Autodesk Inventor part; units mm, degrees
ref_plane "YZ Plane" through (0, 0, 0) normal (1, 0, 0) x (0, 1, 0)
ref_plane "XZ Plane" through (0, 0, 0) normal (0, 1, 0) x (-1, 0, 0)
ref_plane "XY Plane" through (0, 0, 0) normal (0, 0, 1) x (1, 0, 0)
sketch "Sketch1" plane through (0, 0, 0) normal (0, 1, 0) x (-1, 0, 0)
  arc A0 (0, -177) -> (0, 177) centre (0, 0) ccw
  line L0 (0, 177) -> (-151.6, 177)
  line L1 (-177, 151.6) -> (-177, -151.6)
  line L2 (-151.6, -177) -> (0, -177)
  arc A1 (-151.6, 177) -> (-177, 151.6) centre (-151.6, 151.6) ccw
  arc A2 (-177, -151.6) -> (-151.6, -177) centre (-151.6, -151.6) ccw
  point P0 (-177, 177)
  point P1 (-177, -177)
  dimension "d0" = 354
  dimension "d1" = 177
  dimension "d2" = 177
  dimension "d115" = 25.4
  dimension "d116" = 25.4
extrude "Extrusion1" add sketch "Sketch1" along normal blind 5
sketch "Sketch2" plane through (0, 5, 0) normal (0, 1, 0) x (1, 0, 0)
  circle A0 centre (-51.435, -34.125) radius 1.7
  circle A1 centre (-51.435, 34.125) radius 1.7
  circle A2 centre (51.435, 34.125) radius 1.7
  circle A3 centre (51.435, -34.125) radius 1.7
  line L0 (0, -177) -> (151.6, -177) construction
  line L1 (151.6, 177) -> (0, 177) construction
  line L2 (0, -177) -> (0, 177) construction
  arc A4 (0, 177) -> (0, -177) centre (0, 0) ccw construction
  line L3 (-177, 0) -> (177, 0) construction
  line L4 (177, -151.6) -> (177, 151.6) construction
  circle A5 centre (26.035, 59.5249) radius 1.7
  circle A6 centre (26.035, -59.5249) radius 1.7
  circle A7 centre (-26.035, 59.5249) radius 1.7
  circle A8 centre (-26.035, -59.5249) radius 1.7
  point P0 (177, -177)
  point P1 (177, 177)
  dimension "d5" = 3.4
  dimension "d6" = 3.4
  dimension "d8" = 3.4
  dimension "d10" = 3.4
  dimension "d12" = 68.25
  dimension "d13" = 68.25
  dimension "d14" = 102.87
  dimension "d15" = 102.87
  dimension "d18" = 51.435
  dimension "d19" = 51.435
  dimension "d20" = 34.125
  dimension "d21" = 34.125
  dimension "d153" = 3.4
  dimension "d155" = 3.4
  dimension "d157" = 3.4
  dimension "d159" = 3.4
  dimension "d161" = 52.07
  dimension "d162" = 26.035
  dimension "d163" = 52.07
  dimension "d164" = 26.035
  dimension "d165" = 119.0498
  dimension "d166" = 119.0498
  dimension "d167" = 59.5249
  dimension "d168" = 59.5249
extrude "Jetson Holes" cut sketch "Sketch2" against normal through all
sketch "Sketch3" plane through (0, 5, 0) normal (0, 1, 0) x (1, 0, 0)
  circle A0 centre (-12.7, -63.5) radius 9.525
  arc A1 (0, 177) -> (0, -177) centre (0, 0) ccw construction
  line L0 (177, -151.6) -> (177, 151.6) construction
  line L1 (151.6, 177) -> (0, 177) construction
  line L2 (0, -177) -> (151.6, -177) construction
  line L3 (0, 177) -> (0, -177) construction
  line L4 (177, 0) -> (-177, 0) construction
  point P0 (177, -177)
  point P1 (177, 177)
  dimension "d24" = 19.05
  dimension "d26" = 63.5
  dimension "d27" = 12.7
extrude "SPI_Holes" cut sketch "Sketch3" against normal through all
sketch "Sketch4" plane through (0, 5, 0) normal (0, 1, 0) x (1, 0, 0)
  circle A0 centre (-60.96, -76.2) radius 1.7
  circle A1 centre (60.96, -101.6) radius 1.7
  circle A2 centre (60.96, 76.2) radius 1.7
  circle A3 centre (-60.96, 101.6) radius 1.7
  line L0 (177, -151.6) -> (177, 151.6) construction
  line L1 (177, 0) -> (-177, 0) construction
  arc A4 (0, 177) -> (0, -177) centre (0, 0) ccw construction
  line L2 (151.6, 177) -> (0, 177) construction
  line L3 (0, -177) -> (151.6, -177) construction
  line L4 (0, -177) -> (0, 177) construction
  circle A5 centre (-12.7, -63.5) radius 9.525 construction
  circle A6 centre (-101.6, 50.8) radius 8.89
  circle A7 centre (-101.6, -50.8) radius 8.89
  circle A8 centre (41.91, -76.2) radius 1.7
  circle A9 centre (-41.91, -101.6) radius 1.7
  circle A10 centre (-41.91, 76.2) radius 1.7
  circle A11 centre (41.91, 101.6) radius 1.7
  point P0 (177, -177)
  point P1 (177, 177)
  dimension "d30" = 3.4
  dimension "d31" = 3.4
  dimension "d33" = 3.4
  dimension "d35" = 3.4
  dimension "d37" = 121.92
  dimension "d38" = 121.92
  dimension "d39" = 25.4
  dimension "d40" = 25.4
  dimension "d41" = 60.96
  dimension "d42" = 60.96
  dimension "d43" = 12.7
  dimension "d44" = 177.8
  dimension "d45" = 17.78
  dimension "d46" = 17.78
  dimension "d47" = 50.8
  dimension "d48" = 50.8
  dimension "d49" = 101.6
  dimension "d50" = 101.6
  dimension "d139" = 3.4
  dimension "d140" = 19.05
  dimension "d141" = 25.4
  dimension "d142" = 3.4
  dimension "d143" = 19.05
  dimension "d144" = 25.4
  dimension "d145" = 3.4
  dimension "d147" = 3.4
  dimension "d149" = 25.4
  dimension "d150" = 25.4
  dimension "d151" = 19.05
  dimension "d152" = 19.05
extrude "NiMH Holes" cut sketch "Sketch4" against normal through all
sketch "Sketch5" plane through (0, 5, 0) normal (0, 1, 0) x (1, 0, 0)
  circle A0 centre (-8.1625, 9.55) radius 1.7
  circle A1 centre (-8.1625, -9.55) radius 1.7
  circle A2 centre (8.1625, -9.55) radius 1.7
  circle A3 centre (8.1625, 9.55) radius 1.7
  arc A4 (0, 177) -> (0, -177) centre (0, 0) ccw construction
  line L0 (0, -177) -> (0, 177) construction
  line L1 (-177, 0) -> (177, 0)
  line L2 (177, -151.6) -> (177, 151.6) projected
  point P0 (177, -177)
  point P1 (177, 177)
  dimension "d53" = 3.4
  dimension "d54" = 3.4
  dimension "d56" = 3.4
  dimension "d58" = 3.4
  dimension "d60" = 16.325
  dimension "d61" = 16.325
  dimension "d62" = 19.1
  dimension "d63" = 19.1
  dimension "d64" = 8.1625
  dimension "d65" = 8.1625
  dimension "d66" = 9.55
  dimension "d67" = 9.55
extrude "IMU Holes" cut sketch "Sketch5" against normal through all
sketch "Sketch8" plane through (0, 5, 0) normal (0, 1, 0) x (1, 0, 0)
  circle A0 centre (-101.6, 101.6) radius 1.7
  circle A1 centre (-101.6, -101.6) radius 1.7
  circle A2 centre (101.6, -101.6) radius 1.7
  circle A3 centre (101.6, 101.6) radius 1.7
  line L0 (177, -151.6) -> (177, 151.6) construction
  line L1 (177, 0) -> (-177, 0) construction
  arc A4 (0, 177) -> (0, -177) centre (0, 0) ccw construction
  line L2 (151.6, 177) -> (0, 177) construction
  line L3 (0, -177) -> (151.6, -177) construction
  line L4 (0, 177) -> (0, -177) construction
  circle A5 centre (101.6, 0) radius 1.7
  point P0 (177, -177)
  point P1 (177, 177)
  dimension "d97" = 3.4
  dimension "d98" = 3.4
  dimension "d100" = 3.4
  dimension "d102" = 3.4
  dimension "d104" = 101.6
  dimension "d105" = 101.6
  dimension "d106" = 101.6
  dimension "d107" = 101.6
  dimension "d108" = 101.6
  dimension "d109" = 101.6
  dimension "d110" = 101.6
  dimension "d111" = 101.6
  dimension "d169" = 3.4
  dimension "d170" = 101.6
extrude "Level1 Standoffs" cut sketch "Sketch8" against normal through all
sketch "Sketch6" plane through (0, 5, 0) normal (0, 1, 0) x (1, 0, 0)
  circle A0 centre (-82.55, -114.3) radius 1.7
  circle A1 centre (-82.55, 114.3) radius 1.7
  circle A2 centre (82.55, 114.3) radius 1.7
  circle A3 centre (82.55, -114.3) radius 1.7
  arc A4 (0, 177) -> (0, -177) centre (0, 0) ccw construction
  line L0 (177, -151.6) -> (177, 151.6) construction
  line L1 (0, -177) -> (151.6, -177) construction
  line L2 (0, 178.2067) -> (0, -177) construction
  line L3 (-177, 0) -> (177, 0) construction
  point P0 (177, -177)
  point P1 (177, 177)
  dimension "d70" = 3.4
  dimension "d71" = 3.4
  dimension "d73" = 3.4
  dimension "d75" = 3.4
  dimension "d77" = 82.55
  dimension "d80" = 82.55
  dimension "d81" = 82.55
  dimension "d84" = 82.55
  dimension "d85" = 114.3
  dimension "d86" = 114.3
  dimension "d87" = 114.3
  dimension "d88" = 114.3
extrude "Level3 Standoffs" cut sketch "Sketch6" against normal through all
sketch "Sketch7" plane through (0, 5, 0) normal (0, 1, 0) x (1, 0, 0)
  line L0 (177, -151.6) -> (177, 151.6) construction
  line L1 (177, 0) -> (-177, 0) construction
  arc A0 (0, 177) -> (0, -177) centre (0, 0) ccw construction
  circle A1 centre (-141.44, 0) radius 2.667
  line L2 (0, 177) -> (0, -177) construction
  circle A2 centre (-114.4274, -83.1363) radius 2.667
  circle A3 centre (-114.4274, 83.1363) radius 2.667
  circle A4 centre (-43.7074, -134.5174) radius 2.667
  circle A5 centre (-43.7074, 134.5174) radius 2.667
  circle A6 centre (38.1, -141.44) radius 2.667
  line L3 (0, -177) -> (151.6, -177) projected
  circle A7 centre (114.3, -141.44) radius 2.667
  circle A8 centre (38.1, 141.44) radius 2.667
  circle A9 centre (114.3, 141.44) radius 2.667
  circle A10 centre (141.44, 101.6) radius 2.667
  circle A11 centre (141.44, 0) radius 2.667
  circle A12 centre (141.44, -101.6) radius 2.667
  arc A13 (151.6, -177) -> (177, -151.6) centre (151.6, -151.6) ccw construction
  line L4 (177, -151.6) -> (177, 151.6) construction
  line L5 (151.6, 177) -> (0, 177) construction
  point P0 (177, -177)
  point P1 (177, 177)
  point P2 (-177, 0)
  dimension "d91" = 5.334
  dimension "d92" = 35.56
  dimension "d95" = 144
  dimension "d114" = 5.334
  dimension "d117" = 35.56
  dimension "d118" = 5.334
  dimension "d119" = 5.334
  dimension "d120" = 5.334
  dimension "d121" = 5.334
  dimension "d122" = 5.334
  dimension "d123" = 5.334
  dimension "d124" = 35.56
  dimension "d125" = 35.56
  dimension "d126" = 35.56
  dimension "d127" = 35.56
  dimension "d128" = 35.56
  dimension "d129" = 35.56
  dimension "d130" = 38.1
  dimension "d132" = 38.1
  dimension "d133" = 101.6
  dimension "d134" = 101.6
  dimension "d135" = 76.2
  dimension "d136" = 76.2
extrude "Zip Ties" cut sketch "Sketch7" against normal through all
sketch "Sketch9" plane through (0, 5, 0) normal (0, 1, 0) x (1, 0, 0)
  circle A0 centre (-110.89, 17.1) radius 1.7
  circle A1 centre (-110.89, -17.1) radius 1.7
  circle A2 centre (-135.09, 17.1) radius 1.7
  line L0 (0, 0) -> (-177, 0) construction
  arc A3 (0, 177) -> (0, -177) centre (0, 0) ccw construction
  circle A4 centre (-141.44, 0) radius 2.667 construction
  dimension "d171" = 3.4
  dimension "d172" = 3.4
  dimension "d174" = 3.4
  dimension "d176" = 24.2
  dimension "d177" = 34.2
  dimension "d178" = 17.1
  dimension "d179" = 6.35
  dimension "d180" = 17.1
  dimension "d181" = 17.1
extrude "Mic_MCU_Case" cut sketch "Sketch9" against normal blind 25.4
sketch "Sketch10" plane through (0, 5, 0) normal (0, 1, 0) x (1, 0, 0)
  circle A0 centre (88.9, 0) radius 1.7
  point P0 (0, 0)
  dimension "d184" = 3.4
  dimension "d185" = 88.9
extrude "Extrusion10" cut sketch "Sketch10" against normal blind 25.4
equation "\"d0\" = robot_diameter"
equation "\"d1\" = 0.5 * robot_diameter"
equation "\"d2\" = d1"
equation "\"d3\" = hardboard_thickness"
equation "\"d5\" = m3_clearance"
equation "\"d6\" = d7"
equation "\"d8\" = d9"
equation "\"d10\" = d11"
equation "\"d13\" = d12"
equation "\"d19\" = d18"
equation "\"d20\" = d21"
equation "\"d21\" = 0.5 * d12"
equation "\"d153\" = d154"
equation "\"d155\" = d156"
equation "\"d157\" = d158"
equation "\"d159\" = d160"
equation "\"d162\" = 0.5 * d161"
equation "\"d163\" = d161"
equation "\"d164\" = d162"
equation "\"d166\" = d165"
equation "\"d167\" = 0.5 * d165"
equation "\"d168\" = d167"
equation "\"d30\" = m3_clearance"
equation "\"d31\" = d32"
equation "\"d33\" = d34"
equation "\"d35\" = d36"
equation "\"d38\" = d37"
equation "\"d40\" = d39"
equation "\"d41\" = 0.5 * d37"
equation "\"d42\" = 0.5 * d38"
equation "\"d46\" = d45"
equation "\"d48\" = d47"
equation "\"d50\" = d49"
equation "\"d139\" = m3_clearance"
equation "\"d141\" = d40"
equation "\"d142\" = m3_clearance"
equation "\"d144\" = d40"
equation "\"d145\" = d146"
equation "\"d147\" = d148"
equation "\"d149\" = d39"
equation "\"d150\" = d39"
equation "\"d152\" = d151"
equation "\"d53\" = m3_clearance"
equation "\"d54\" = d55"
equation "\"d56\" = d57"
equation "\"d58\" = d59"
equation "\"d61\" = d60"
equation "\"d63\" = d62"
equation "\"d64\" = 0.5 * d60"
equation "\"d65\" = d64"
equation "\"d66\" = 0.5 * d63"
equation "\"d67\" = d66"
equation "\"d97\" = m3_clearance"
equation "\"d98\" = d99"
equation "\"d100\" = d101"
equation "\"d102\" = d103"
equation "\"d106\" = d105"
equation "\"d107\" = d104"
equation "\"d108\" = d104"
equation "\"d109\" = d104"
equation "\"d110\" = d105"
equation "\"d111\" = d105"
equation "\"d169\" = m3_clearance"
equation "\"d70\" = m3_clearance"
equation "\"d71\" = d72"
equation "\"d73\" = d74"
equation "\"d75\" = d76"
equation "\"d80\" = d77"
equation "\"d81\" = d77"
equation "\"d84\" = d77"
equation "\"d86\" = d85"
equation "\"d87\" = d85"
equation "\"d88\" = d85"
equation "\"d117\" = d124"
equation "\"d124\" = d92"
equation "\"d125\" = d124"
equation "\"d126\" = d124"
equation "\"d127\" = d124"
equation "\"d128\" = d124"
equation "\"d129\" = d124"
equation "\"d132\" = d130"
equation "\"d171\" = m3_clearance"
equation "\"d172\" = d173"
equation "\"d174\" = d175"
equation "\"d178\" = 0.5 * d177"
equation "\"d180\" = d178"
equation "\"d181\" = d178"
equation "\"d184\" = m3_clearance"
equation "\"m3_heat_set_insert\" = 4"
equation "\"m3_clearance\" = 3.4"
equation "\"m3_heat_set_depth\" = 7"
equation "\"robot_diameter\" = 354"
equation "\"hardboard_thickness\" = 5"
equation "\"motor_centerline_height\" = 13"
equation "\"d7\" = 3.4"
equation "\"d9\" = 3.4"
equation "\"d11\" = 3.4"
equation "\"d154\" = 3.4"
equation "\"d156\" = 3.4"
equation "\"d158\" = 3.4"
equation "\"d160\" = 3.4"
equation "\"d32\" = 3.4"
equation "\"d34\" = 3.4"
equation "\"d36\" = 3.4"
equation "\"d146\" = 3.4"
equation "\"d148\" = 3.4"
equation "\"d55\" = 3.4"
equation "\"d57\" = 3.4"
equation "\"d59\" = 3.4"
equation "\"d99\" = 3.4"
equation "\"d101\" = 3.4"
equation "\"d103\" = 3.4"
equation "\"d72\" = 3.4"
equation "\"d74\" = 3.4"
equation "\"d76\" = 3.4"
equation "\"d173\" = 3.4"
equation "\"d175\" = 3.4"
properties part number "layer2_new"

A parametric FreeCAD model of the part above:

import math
import FreeCAD as App
import Part
import Sketcher
from FreeCAD import Vector
Q = App.Units.Quantity

doc = App.newDocument("Part")
body = doc.addObject("PartDesign::Body", "Body")

sketch1 = doc.addObject("Sketcher::SketchObject", "Sketch")
body.addObject(sketch1)
sketch1.AttachmentSupport = (doc.XZ_Plane, [""])
sketch1.MapMode = "FlatFace"
sketch1.addGeometry([
    Part.LineSegment(Vector(152, -177, 0), Vector(0, -177, 0)),
    Part.ArcOfCircle(Part.Circle(Vector(0, 0, 0), Vector(0, 0, 1), 177), math.radians(90), math.radians(270)),
    Part.LineSegment(Vector(0, 177, 0), Vector(152, 177, 0)),
    Part.ArcOfCircle(Part.Circle(Vector(152, 152, 0), Vector(0, 0, 1), 25), math.radians(0), math.radians(90)),
    Part.LineSegment(Vector(177, 152, 0), Vector(177, -152, 0)),
    Part.ArcOfCircle(Part.Circle(Vector(152, -152, 0), Vector(0, 0, 1), 25), math.radians(-90), math.radians(0)),
], False)
sketch1.addConstraint([
    Sketcher.Constraint("Tangent", 0, 2, 1, 2),
    Sketcher.Constraint("Tangent", 1, 1, 2, 1),
    Sketcher.Constraint("Tangent", 2, 2, 3, 2),
    Sketcher.Constraint("Tangent", 3, 1, 4, 1),
    Sketcher.Constraint("Tangent", 4, 2, 5, 2),
    Sketcher.Constraint("Tangent", 5, 1, 0, 1),
    Sketcher.Constraint("Horizontal", 0),
    Sketcher.Constraint("Horizontal", 2),
    Sketcher.Constraint("Vertical", 4),
    Sketcher.Constraint("Coincident", 1, 3, -1, 1),
    Sketcher.Constraint("Equal", 3, 5),
    Sketcher.Constraint("Radius", 3, Q("1 in")),
    Sketcher.Constraint("Radius", 1, Q("6.9685 in")),
    Sketcher.Constraint("DistanceX", -1, 1, 3, 1, Q("6.9685 in")),
])
pad1 = doc.addObject("PartDesign::Pad", "Pad")
body.addObject(pad1)
pad1.Profile = sketch1
pad1.Length = 5
pad1.Reversed = True

sketch2 = doc.addObject("Sketcher::SketchObject", "Sketch001")
body.addObject(sketch2)
sketch2.AttachmentSupport = (doc.XZ_Plane, [""])
sketch2.MapMode = "FlatFace"
sketch2.AttachmentOffset = App.Placement(Vector(0, 0, -5), App.Rotation())
sketch2.addGeometry([
    Part.Circle(Vector(-51.4, 34.1, 0), Vector(0, 0, 1), 1.7),
    Part.Circle(Vector(-51.4, -34.1, 0), Vector(0, 0, 1), 1.7),
    Part.Circle(Vector(51.4, -34.1, 0), Vector(0, 0, 1), 1.7),
    Part.Circle(Vector(51.4, 34.1, 0), Vector(0, 0, 1), 1.7),
    Part.Circle(Vector(26, -59.5, 0), Vector(0, 0, 1), 1.7),
    Part.Circle(Vector(26, 59.5, 0), Vector(0, 0, 1), 1.7),
    Part.Circle(Vector(-26, -59.5, 0), Vector(0, 0, 1), 1.7),
    Part.Circle(Vector(-26, 59.5, 0), Vector(0, 0, 1), 1.7),
], False)
sketch2.addConstraint([
    Sketcher.Constraint("Equal", 0, 1),
    Sketcher.Constraint("Equal", 1, 2),
    Sketcher.Constraint("Equal", 2, 3),
    Sketcher.Constraint("Equal", 3, 4),
    Sketcher.Constraint("Equal", 4, 5),
    Sketcher.Constraint("Equal", 5, 6),
    Sketcher.Constraint("Equal", 6, 7),
    Sketcher.Constraint("Symmetric", 0, 3, 2, 3, -1, 1),
    Sketcher.Constraint("Symmetric", 1, 3, 3, 3, -1, 1),
    Sketcher.Constraint("Symmetric", 5, 3, 6, 3, -1, 1),
    Sketcher.Constraint("Symmetric", 4, 3, 7, 3, -1, 1),
    Sketcher.Constraint("Symmetric", 1, 3, 2, 3, -2),
    Sketcher.Constraint("Symmetric", 4, 3, 6, 3, -2),
    Sketcher.Constraint("Diameter", 0, 3.4),
    Sketcher.Constraint("DistanceX", 1, 3, 2, 3, Q("4.05 in")),
    Sketcher.Constraint("DistanceX", 6, 3, 4, 3, Q("2.05 in")),
    Sketcher.Constraint("DistanceY", 1, 3, 0, 3, Q("2.687 in")),
    Sketcher.Constraint("DistanceY", 4, 3, 2, 3, Q("1 in")),
])
pocket1 = doc.addObject("PartDesign::Pocket", "Pocket")
body.addObject(pocket1)
pocket1.Profile = sketch2
pocket1.Type = "ThroughAll"
pocket1.Reversed = True

sketch3 = doc.addObject("Sketcher::SketchObject", "Sketch002")
body.addObject(sketch3)
sketch3.AttachmentSupport = (doc.XZ_Plane, [""])
sketch3.MapMode = "FlatFace"
sketch3.AttachmentOffset = App.Placement(Vector(0, 0, -5), App.Rotation())
sketch3.addGeometry(Part.Circle(Vector(-13, 64, 0), Vector(0, 0, 1), 10), False)
sketch3.addConstraint([
    Sketcher.Constraint("Diameter", 0, Q("0.75 in")),
    Sketcher.Constraint("DistanceX", 0, 3, -1, 1, Q("0.5 in")),
    Sketcher.Constraint("DistanceY", -1, 1, 0, 3, Q("2.5 in")),
])
pocket2 = doc.addObject("PartDesign::Pocket", "Pocket001")
body.addObject(pocket2)
pocket2.Profile = sketch3
pocket2.Type = "ThroughAll"
pocket2.Reversed = True

sketch4 = doc.addObject("Sketcher::SketchObject", "Sketch003")
body.addObject(sketch4)
sketch4.AttachmentSupport = (doc.XZ_Plane, [""])
sketch4.MapMode = "FlatFace"
sketch4.AttachmentOffset = App.Placement(Vector(0, 0, -5), App.Rotation())
sketch4.addGeometry([
    Part.Circle(Vector(-61, 76.2, 0), Vector(0, 0, 1), 1.7),
    Part.Circle(Vector(61, 101.6, 0), Vector(0, 0, 1), 1.7),
    Part.Circle(Vector(61, -76.2, 0), Vector(0, 0, 1), 1.7),
    Part.Circle(Vector(-61, -101.6, 0), Vector(0, 0, 1), 1.7),
    Part.Circle(Vector(-101.6, -50.8, 0), Vector(0, 0, 1), 8.9),
    Part.Circle(Vector(-101.6, 50.8, 0), Vector(0, 0, 1), 8.9),
    Part.Circle(Vector(41.9, 76.2, 0), Vector(0, 0, 1), 1.7),
    Part.Circle(Vector(-41.9, 101.6, 0), Vector(0, 0, 1), 1.7),
    Part.Circle(Vector(-41.9, -76.2, 0), Vector(0, 0, 1), 1.7),
    Part.Circle(Vector(41.9, -101.6, 0), Vector(0, 0, 1), 1.7),
], False)
sketch4.addConstraint([
    Sketcher.Constraint("Equal", 0, 1),
    Sketcher.Constraint("Equal", 1, 2),
    Sketcher.Constraint("Equal", 2, 3),
    Sketcher.Constraint("Equal", 4, 5),
    Sketcher.Constraint("Equal", 3, 6),
    Sketcher.Constraint("Equal", 6, 7),
    Sketcher.Constraint("Equal", 7, 8),
    Sketcher.Constraint("Equal", 8, 9),
    Sketcher.Constraint("Symmetric", 0, 3, 2, 3, -1, 1),
    Sketcher.Constraint("Symmetric", 1, 3, 3, 3, -1, 1),
    Sketcher.Constraint("Symmetric", 6, 3, 8, 3, -1, 1),
    Sketcher.Constraint("Symmetric", 7, 3, 9, 3, -1, 1),
    Sketcher.Constraint("Symmetric", 4, 3, 5, 3, -1),
    Sketcher.Constraint("Horizontal", 0, 3, 6, 3),
    Sketcher.Constraint("Horizontal", 1, 3, 7, 3),
    Sketcher.Constraint("Vertical", 1, 3, 2, 3),
    Sketcher.Constraint("Vertical", 7, 3, 8, 3),
    Sketcher.Constraint("Diameter", 4, Q("0.7 in")),
    Sketcher.Constraint("DistanceY", -1, 1, 1, 3, Q("4 in")),
    Sketcher.Constraint("DistanceX", 4, 3, -1, 1, Q("4 in")),
    Sketcher.Constraint("DistanceY", 4, 3, -1, 1, Q("2 in")),
    Sketcher.Constraint("DistanceY", 0, 3, 1, 3, Q("1 in")),
    Sketcher.Constraint("DistanceX", 0, 3, -1, 1, Q("2.4 in")),
    Sketcher.Constraint("Diameter", 0, 3.4),
    Sketcher.Constraint("DistanceX", 6, 3, 1, 3, Q("0.75 in")),
])
pocket3 = doc.addObject("PartDesign::Pocket", "Pocket002")
body.addObject(pocket3)
pocket3.Profile = sketch4
pocket3.Type = "ThroughAll"
pocket3.Reversed = True

sketch5 = doc.addObject("Sketcher::SketchObject", "Sketch004")
body.addObject(sketch5)
sketch5.AttachmentSupport = (doc.XZ_Plane, [""])
sketch5.MapMode = "FlatFace"
sketch5.AttachmentOffset = App.Placement(Vector(0, 0, -5), App.Rotation())
sketch5.addGeometry([
    Part.Circle(Vector(-8.2, -9.6, 0), Vector(0, 0, 1), 1.7),
    Part.Circle(Vector(-8.2, 9.6, 0), Vector(0, 0, 1), 1.7),
    Part.Circle(Vector(8.2, 9.6, 0), Vector(0, 0, 1), 1.7),
    Part.Circle(Vector(8.2, -9.6, 0), Vector(0, 0, 1), 1.7),
], False)
sketch5.addConstraint([
    Sketcher.Constraint("Equal", 0, 1),
    Sketcher.Constraint("Equal", 1, 2),
    Sketcher.Constraint("Equal", 2, 3),
    Sketcher.Constraint("Symmetric", 0, 3, 2, 3, -1, 1),
    Sketcher.Constraint("Symmetric", 1, 3, 3, 3, -1, 1),
    Sketcher.Constraint("Symmetric", 1, 3, 2, 3, -2),
    Sketcher.Constraint("Diameter", 0, 3.4),
    Sketcher.Constraint("DistanceX", 0, 3, -1, 1, 8.1625),
    Sketcher.Constraint("DistanceY", 0, 3, -1, 1, 9.55),
])
pocket4 = doc.addObject("PartDesign::Pocket", "Pocket003")
body.addObject(pocket4)
pocket4.Profile = sketch5
pocket4.Type = "ThroughAll"
pocket4.Reversed = True

sketch6 = doc.addObject("Sketcher::SketchObject", "Sketch005")
body.addObject(sketch6)
sketch6.AttachmentSupport = (doc.XZ_Plane, [""])
sketch6.MapMode = "FlatFace"
sketch6.AttachmentOffset = App.Placement(Vector(0, 0, -5), App.Rotation())
sketch6.addGeometry([
    Part.Circle(Vector(-101.6, -101.6, 0), Vector(0, 0, 1), 1.7),
    Part.Circle(Vector(-101.6, 101.6, 0), Vector(0, 0, 1), 1.7),
    Part.Circle(Vector(101.6, 101.6, 0), Vector(0, 0, 1), 1.7),
    Part.Circle(Vector(101.6, -101.6, 0), Vector(0, 0, 1), 1.7),
    Part.Circle(Vector(101.6, 0, 0), Vector(0, 0, 1), 1.7),
], False)
sketch6.addConstraint([
    Sketcher.Constraint("Equal", 0, 1),
    Sketcher.Constraint("Equal", 1, 2),
    Sketcher.Constraint("Equal", 2, 3),
    Sketcher.Constraint("Equal", 3, 4),
    Sketcher.Constraint("Symmetric", 0, 3, 2, 3, -1, 1),
    Sketcher.Constraint("Symmetric", 1, 3, 3, 3, -1, 1),
    Sketcher.Constraint("Symmetric", 1, 3, 2, 3, -2),
    Sketcher.Constraint("PointOnObject", 4, 3, -1),
    Sketcher.Constraint("Vertical", 3, 3, 4, 3),
    Sketcher.Constraint("DistanceX", 0, 3, -1, 1, Q("4 in")),
    Sketcher.Constraint("DistanceY", 0, 3, -1, 1, Q("4 in")),
    Sketcher.Constraint("Diameter", 0, 3.4),
])
pocket5 = doc.addObject("PartDesign::Pocket", "Pocket004")
body.addObject(pocket5)
pocket5.Profile = sketch6
pocket5.Type = "ThroughAll"
pocket5.Reversed = True

sketch7 = doc.addObject("Sketcher::SketchObject", "Sketch006")
body.addObject(sketch7)
sketch7.AttachmentSupport = (doc.XZ_Plane, [""])
sketch7.MapMode = "FlatFace"
sketch7.AttachmentOffset = App.Placement(Vector(0, 0, -5), App.Rotation())
sketch7.addGeometry([
    Part.Circle(Vector(-82.5, 114.3, 0), Vector(0, 0, 1), 1.7),
    Part.Circle(Vector(-82.5, -114.3, 0), Vector(0, 0, 1), 1.7),
    Part.Circle(Vector(82.5, -114.3, 0), Vector(0, 0, 1), 1.7),
    Part.Circle(Vector(82.5, 114.3, 0), Vector(0, 0, 1), 1.7),
], False)
sketch7.addConstraint([
    Sketcher.Constraint("Equal", 0, 1),
    Sketcher.Constraint("Equal", 1, 2),
    Sketcher.Constraint("Equal", 2, 3),
    Sketcher.Constraint("Symmetric", 0, 3, 2, 3, -1, 1),
    Sketcher.Constraint("Symmetric", 1, 3, 3, 3, -1, 1),
    Sketcher.Constraint("Symmetric", 1, 3, 2, 3, -2),
    Sketcher.Constraint("DistanceY", -1, 1, 0, 3, Q("4.5 in")),
    Sketcher.Constraint("Diameter", 0, 3.4),
    Sketcher.Constraint("DistanceX", 0, 3, -1, 1, Q("3.25 in")),
])
pocket6 = doc.addObject("PartDesign::Pocket", "Pocket005")
body.addObject(pocket6)
pocket6.Profile = sketch7
pocket6.Type = "ThroughAll"
pocket6.Reversed = True

sketch8 = doc.addObject("Sketcher::SketchObject", "Sketch007")
body.addObject(sketch8)
sketch8.AttachmentSupport = (doc.XZ_Plane, [""])
sketch8.MapMode = "FlatFace"
sketch8.AttachmentOffset = App.Placement(Vector(0, 0, -5), App.Rotation())
sketch8.addGeometry([
    Part.Circle(Vector(-141.4, 0, 0), Vector(0, 0, 1), 2.7),
    Part.Circle(Vector(-114.4, 83.1, 0), Vector(0, 0, 1), 2.7),
    Part.Circle(Vector(-114.4, -83.1, 0), Vector(0, 0, 1), 2.7),
    Part.Circle(Vector(-43.7, 134.5, 0), Vector(0, 0, 1), 2.7),
    Part.Circle(Vector(-43.7, -134.5, 0), Vector(0, 0, 1), 2.7),
    Part.Circle(Vector(38.1, 141.4, 0), Vector(0, 0, 1), 2.7),
    Part.Circle(Vector(114.3, 141.4, 0), Vector(0, 0, 1), 2.7),
    Part.Circle(Vector(38.1, -141.4, 0), Vector(0, 0, 1), 2.7),
    Part.Circle(Vector(114.3, -141.4, 0), Vector(0, 0, 1), 2.7),
    Part.Circle(Vector(141.4, -101.6, 0), Vector(0, 0, 1), 2.7),
    Part.Circle(Vector(141.4, 0, 0), Vector(0, 0, 1), 2.7),
    Part.Circle(Vector(141.4, 101.6, 0), Vector(0, 0, 1), 2.7),
], False)
sketch8.addConstraint([
    Sketcher.Constraint("Equal", 0, 1),
    Sketcher.Constraint("Equal", 1, 2),
    Sketcher.Constraint("Equal", 2, 3),
    Sketcher.Constraint("Equal", 3, 4),
    Sketcher.Constraint("Equal", 4, 5),
    Sketcher.Constraint("Equal", 5, 6),
    Sketcher.Constraint("Equal", 6, 7),
    Sketcher.Constraint("Equal", 7, 8),
    Sketcher.Constraint("Equal", 8, 9),
    Sketcher.Constraint("Equal", 9, 10),
    Sketcher.Constraint("Equal", 10, 11),
    Sketcher.Constraint("Symmetric", 0, 3, 10, 3, -1, 1),
    Sketcher.Constraint("Symmetric", 1, 3, 2, 3, -1),
    Sketcher.Constraint("Symmetric", 3, 3, 4, 3, -1),
    Sketcher.Constraint("Symmetric", 5, 3, 7, 3, -1),
    Sketcher.Constraint("Symmetric", 6, 3, 8, 3, -1),
    Sketcher.Constraint("Symmetric", 9, 3, 11, 3, -1),
    Sketcher.Constraint("PointOnObject", 0, 3, -1),
    Sketcher.Constraint("Horizontal", 5, 3, 6, 3),
    Sketcher.Constraint("Vertical", 9, 3, 10, 3),
    Sketcher.Constraint("Diameter", 0, Q("0.21 in")),
    Sketcher.Constraint("DistanceY", 9, 3, -1, 1, Q("4 in")),
    Sketcher.Constraint("DistanceX", 5, 3, 6, 3, Q("3 in")),
    Sketcher.Constraint("DistanceX", -1, 1, 5, 3, Q("1.5 in")),
    Sketcher.Constraint("DistanceY", 7, 3, 5, 3, Q("11.137 in")),
    Sketcher.Constraint("DistanceX", 0, 3, -1, 1, Q("5.5685 in")),
    Sketcher.Constraint("DistanceX", 0, 3, 1, 3, Q("1.0635 in")),
    Sketcher.Constraint("DistanceY", -1, 1, 1, 3, 83.1363),
    Sketcher.Constraint("DistanceX", 3, 3, -1, 1, 43.7074),
    Sketcher.Constraint("DistanceY", -1, 1, 3, 3, 134.5174),
])
pocket7 = doc.addObject("PartDesign::Pocket", "Pocket006")
body.addObject(pocket7)
pocket7.Profile = sketch8
pocket7.Type = "ThroughAll"
pocket7.Reversed = True

sketch9 = doc.addObject("Sketcher::SketchObject", "Sketch008")
body.addObject(sketch9)
sketch9.AttachmentSupport = (doc.XZ_Plane, [""])
sketch9.MapMode = "FlatFace"
sketch9.AttachmentOffset = App.Placement(Vector(0, 0, -5), App.Rotation())
sketch9.addGeometry([
    Part.Circle(Vector(-110.9, -17.1, 0), Vector(0, 0, 1), 1.7),
    Part.Circle(Vector(-110.9, 17.1, 0), Vector(0, 0, 1), 1.7),
    Part.Circle(Vector(-135.1, -17.1, 0), Vector(0, 0, 1), 1.7),
], False)
sketch9.addConstraint([
    Sketcher.Constraint("Equal", 0, 1),
    Sketcher.Constraint("Equal", 1, 2),
    Sketcher.Constraint("Symmetric", 0, 3, 1, 3, -1),
    Sketcher.Constraint("Horizontal", 0, 3, 2, 3),
    Sketcher.Constraint("Diameter", 0, 3.4),
    Sketcher.Constraint("DistanceY", 0, 3, -1, 1, 17.1),
    Sketcher.Constraint("DistanceX", 2, 3, 0, 3, 24.2),
    Sketcher.Constraint("DistanceX", 2, 3, -1, 1, Q("5.3185 in")),
])
pocket8 = doc.addObject("PartDesign::Pocket", "Pocket007")
body.addObject(pocket8)
pocket8.Profile = sketch9
pocket8.Length = Q("1 in")
pocket8.Reversed = True

sketch10 = doc.addObject("Sketcher::SketchObject", "Sketch009")
body.addObject(sketch10)
sketch10.AttachmentSupport = (doc.XZ_Plane, [""])
sketch10.MapMode = "FlatFace"
sketch10.AttachmentOffset = App.Placement(Vector(0, 0, -5), App.Rotation())
sketch10.addGeometry(Part.Circle(Vector(88.9, 0, 0), Vector(0, 0, 1), 1.7), False)
sketch10.addConstraint([
    Sketcher.Constraint("PointOnObject", 0, 3, -1),
    Sketcher.Constraint("DistanceX", -1, 1, 0, 3, Q("3.5 in")),
    Sketcher.Constraint("Diameter", 0, 3.4),
])
pocket9 = doc.addObject("PartDesign::Pocket", "Pocket008")
body.addObject(pocket9)
pocket9.Profile = sketch10
pocket9.Length = Q("1 in")
pocket9.Reversed = True

doc.recompute()
